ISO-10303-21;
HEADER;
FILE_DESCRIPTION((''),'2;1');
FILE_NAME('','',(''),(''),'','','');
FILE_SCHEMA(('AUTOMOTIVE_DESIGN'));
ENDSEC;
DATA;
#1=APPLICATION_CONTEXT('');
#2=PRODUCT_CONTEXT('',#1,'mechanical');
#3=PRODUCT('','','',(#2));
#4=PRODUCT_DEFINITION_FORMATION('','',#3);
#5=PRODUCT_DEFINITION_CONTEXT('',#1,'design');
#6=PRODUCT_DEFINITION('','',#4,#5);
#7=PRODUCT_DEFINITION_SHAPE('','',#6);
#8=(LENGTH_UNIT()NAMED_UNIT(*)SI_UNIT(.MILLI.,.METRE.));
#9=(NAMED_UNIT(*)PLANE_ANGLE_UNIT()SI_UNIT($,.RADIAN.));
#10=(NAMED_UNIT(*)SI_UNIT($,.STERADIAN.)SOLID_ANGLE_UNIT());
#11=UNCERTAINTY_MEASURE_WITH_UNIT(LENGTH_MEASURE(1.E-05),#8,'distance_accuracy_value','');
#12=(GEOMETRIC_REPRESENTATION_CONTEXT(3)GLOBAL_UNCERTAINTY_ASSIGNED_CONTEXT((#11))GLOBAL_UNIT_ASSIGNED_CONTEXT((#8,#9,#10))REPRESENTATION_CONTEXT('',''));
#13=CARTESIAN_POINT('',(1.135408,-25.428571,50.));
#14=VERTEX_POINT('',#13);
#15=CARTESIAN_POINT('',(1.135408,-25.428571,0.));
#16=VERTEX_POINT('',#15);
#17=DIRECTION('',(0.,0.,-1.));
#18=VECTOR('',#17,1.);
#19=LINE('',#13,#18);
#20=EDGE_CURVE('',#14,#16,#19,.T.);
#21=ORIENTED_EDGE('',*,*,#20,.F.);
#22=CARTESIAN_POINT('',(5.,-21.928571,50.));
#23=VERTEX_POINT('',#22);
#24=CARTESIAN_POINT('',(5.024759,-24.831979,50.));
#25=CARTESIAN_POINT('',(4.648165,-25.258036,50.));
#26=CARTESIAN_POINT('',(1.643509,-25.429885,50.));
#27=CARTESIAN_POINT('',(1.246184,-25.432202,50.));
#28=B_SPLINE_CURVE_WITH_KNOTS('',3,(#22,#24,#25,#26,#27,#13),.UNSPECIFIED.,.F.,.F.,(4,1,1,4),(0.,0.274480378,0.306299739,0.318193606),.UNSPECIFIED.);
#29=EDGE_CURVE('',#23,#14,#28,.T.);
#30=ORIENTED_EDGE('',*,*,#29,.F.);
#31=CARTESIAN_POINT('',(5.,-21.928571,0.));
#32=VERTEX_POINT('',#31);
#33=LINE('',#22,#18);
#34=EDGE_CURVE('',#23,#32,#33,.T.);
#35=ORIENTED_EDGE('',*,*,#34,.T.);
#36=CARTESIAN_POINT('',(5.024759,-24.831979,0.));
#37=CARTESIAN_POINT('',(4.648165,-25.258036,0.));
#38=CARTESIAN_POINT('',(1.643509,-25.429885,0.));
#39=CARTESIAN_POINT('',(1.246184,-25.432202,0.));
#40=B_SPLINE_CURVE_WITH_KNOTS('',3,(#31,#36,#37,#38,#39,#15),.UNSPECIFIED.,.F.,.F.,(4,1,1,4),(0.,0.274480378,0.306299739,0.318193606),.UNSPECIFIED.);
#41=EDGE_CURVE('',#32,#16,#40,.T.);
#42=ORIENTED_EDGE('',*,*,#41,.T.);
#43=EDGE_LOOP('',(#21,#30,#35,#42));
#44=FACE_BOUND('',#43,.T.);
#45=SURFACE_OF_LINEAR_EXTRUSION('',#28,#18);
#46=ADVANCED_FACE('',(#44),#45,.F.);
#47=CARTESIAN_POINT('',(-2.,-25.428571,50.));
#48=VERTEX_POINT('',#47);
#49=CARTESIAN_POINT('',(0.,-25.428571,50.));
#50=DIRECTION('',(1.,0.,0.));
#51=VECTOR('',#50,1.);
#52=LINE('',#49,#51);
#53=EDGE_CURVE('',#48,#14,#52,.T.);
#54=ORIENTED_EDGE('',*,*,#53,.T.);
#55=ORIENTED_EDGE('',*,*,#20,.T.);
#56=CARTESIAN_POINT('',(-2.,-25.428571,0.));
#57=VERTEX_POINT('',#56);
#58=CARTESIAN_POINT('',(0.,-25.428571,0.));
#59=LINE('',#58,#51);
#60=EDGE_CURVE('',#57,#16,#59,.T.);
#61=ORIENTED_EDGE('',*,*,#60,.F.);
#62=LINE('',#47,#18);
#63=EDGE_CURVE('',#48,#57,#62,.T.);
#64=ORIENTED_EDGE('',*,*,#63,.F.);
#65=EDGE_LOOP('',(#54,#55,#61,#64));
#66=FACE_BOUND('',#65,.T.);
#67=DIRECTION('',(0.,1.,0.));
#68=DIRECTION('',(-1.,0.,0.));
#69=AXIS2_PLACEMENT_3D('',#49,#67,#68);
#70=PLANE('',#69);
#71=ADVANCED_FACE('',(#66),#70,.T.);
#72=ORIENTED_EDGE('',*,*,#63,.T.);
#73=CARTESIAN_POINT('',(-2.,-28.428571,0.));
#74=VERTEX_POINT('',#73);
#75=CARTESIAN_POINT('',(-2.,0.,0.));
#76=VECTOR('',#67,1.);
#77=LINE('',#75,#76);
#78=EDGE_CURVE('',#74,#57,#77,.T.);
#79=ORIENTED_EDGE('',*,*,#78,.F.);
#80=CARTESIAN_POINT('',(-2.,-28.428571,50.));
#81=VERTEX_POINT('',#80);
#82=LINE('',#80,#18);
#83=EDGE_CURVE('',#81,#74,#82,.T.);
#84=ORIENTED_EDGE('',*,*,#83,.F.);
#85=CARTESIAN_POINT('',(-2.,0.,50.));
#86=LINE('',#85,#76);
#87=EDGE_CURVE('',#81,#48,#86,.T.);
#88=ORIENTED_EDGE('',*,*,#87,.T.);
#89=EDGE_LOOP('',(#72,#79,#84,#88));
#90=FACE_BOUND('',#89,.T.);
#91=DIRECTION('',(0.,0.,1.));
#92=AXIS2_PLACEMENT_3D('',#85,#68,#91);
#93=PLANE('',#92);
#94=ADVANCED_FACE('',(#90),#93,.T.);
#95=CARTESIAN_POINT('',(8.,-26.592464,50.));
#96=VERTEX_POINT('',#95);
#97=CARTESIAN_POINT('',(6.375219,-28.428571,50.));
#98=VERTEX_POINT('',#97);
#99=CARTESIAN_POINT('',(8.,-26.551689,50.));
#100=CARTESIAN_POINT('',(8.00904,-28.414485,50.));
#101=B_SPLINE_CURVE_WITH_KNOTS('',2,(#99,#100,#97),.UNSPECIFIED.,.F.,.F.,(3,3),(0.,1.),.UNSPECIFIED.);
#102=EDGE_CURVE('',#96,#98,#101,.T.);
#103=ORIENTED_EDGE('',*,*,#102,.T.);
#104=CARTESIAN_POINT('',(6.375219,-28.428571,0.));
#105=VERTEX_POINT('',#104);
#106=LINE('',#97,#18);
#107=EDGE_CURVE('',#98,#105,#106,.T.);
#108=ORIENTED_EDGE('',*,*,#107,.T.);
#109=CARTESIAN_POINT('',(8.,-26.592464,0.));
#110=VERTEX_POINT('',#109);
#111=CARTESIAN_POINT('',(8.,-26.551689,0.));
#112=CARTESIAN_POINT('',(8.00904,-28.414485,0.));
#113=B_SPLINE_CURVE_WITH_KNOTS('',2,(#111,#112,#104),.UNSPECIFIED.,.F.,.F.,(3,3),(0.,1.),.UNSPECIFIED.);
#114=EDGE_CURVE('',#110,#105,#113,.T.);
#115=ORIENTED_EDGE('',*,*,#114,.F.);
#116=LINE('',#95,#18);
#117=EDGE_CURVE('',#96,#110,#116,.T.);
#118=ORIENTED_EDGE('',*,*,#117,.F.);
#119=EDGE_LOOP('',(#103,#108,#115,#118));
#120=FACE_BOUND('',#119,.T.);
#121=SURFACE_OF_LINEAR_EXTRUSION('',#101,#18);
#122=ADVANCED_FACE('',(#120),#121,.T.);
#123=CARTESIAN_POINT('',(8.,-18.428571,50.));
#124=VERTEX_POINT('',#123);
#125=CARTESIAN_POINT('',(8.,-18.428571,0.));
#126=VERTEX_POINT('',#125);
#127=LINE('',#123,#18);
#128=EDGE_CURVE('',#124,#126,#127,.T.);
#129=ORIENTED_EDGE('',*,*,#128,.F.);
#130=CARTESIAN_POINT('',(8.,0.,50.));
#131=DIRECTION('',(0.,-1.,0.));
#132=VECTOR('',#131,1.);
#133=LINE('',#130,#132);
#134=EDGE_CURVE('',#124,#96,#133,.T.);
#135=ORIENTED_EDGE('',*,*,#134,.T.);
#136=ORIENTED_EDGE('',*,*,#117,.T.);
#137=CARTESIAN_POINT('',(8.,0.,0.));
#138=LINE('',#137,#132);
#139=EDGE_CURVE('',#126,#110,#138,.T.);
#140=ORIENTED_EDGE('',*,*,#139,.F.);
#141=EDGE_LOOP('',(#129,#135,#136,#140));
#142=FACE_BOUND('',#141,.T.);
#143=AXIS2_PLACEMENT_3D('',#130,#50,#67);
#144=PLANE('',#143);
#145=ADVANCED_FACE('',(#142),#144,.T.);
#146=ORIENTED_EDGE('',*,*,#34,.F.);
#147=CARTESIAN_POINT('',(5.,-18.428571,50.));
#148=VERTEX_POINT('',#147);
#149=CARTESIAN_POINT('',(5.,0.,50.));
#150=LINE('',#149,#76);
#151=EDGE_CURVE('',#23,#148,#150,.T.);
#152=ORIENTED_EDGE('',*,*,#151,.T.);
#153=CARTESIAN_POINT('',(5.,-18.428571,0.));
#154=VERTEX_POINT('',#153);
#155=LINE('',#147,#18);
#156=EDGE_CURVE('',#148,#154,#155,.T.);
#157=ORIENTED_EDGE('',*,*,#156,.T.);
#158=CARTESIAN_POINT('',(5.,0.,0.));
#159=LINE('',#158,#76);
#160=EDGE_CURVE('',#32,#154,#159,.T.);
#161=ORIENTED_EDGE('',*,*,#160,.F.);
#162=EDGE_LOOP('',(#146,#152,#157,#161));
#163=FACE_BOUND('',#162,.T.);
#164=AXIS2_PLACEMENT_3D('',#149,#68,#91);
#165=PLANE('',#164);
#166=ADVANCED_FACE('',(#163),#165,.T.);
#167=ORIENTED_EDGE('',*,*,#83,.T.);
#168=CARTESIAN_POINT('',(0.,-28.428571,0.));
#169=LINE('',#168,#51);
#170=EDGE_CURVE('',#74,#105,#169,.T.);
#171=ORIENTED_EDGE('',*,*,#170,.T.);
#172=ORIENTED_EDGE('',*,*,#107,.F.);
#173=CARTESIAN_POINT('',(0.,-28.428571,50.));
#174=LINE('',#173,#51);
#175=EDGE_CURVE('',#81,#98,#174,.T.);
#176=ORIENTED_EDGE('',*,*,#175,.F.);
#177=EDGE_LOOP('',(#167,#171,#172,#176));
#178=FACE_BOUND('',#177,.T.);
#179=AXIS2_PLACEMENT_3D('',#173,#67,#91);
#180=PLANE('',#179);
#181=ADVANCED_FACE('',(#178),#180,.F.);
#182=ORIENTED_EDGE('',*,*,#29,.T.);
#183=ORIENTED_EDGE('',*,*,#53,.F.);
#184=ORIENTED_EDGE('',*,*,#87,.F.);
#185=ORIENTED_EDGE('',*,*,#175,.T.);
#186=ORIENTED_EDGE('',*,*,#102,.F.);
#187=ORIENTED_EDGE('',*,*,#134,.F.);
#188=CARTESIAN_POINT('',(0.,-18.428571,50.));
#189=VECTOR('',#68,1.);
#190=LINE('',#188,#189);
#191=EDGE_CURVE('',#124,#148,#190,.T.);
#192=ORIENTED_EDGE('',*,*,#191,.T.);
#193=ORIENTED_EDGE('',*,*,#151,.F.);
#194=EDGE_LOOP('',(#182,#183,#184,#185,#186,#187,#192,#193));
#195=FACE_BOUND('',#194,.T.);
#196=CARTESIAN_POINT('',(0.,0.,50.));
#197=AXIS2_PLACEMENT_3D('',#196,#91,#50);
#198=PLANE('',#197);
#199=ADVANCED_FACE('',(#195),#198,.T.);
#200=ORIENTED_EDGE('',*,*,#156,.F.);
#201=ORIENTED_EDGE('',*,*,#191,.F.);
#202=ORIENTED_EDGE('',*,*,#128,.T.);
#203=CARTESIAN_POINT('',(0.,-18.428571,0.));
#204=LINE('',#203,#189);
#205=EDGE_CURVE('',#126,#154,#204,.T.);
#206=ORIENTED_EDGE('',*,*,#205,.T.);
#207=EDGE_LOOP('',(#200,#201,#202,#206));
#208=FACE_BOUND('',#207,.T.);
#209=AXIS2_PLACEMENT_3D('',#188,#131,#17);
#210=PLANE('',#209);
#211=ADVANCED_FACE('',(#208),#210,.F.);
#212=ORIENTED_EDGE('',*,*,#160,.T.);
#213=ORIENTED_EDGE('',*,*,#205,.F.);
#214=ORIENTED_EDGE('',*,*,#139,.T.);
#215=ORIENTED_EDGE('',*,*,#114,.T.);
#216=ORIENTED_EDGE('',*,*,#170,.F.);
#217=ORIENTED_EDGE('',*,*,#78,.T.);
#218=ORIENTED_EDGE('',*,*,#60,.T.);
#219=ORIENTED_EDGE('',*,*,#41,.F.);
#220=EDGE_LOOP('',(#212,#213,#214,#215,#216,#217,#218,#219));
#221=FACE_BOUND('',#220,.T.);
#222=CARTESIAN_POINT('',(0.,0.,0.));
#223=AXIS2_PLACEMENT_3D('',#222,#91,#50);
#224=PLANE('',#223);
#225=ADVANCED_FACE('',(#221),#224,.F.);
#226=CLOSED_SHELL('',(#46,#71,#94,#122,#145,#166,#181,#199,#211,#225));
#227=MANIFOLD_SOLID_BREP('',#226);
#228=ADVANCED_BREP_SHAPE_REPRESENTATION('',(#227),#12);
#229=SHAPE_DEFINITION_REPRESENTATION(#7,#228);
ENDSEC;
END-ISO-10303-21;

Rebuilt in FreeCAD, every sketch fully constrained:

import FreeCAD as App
import Part
import Sketcher
Q = App.Units.Quantity

doc = App.newDocument("Part")
params = doc.addObject("Spreadsheet::Sheet", "Params")
for row, (alias, value) in enumerate([
    ("sketch1_height", "3.5 mm"),
    ("pad1_length", "50 mm"),
], start=1):
    params.set(f"A{row}", alias)
    params.set(f"B{row}", "=" + value)
    params.setAlias(f"B{row}", alias)

body = doc.addObject("PartDesign::Body", "Body")

# Sketch on XY plane
sketch1 = doc.addObject("Sketcher::SketchObject", "Sketch")
body.addObject(sketch1)
sketch1.AttachmentSupport = (doc.XY_Plane, [""])
sketch1.MapMode = "FlatFace"
sketch1.addGeometry(Part.LineSegment(App.Vector(8, -18.428571, 0), App.Vector(5, -18.428571, 0)), False)
sketch1.addGeometry(Part.LineSegment(App.Vector(5, -18.428571, 0), App.Vector(5, -21.928571, 0)), False)
sketch1.addGeometry(Part.BSplineCurve([App.Vector(5, -21.928571, 0), App.Vector(5.024759, -24.831979, 0), App.Vector(4.64979, -25.256197, 0), App.Vector(1.780732, -25.422029, 0), App.Vector(1.5, -25.428571, 0)], [4, 1, 4], [0, 0.274480378, 0.304978198], False, 3, [1, 1, 1, 1, 1], False), False)
sketch1.addGeometry(Part.BSplineCurve([App.Vector(1.5, -25.428571, 0), App.Vector(1.487835, -25.428855, 0), App.Vector(1.366303, -25.431501, 0), App.Vector(1.246184, -25.432202, 0), App.Vector(1.135408, -25.428571, 0)], [4, 1, 4], [0.304978198, 0.306299739, 0.318193606], False, 3, [1, 1, 1, 1, 1], False), False)
sketch1.addGeometry(Part.LineSegment(App.Vector(1.135408, -25.428571, 0), App.Vector(-2, -25.428571, 0)), False)
sketch1.addGeometry(Part.LineSegment(App.Vector(-2, -25.428571, 0), App.Vector(-2, -28.428571, 0)), False)
sketch1.addGeometry(Part.LineSegment(App.Vector(-2, -28.428571, 0), App.Vector(6.375219, -28.428571, 0)), False)
sketch1.addGeometry(Part.BSplineCurve([App.Vector(8, -26.592464, 0), App.Vector(7.991061, -28.41464, 0), App.Vector(6.375219, -28.428571, 0)], [3, 3], [0.011004644, 1], False, 2, [1, 1, 1], False), False)
sketch1.addGeometry(Part.LineSegment(App.Vector(8, -26.592464, 0), App.Vector(8, -18.428571, 0)), False)
sketch1.addConstraint(Sketcher.Constraint("Block", 2))
sketch1.addConstraint(Sketcher.Constraint("Block", 3))
sketch1.addConstraint(Sketcher.Constraint("Block", 7))
sketch1.addConstraint(Sketcher.Constraint("Coincident", 0, 2, 1, 1))
sketch1.addConstraint(Sketcher.Constraint("Coincident", 1, 2, 2, 1))
sketch1.addConstraint(Sketcher.Constraint("Coincident", 3, 2, 4, 1))
sketch1.addConstraint(Sketcher.Constraint("Coincident", 4, 2, 5, 1))
sketch1.addConstraint(Sketcher.Constraint("Coincident", 5, 2, 6, 1))
sketch1.addConstraint(Sketcher.Constraint("Coincident", 6, 2, 7, 2))
sketch1.addConstraint(Sketcher.Constraint("Coincident", 7, 1, 8, 1))
sketch1.addConstraint(Sketcher.Constraint("Coincident", 8, 2, 0, 1))
sketch1.addConstraint(Sketcher.Constraint("Horizontal", 0))
sketch1.addConstraint(Sketcher.Constraint("Vertical", 1))
sketch1.addConstraint(Sketcher.Constraint("Horizontal", 4))
sketch1.addConstraint(Sketcher.Constraint("Vertical", 5))
sketch1.addConstraint(Sketcher.Constraint("Horizontal", 6))
sketch1.addConstraint(Sketcher.Constraint("Vertical", 8))
sketch1.addConstraint(Sketcher.Constraint("DistanceY", 1, 2, 1, 1, Q("3.5 mm")))
sketch1.addConstraint(Sketcher.Constraint("DistanceX", 4, 2, -1, 1, Q("2 mm")))
sketch1.setExpression("Constraints[17]", "Params.sketch1_height")
pad1 = doc.addObject("PartDesign::Pad", "Pad")
body.addObject(pad1)
pad1.Profile = sketch1
pad1.setExpression("Length", "Params.pad1_length")

doc.recompute()
